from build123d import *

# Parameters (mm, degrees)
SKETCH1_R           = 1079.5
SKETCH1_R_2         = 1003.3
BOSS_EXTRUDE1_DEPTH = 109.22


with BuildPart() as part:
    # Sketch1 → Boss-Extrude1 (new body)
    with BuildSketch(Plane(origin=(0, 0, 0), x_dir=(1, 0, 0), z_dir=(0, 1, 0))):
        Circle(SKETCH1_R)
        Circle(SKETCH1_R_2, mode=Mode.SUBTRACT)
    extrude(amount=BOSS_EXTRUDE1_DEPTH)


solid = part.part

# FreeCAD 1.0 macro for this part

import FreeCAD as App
import Part
import Sketcher
Q = App.Units.Quantity

doc = App.newDocument("Part")
params = doc.addObject("Spreadsheet::Sheet", "Params")
for row, (alias, value) in enumerate([
    ("sketch1_diameter", "85 in"),
    ("sketch1_diameter2", "79 in"),
    ("pad1_length", "4.3 in"),
], start=1):
    params.set(f"A{row}", alias)
    params.set(f"B{row}", "=" + value)
    params.setAlias(f"B{row}", alias)

body = doc.addObject("PartDesign::Body", "Body")

sketch1 = doc.addObject("Sketcher::SketchObject", "Sketch")
body.addObject(sketch1)
sketch1.AttachmentSupport = (doc.XZ_Plane, [""])
sketch1.MapMode = "FlatFace"
sketch1.addGeometry(Part.Circle(App.Vector(0, 0, 0), App.Vector(0, 0, 1), 1080), False)
sketch1.addGeometry(Part.Circle(App.Vector(0, 0, 0), App.Vector(0, 0, 1), 1003), False)
sketch1.addConstraint(Sketcher.Constraint("Coincident", 0, 3, -1, 1))
sketch1.addConstraint(Sketcher.Constraint("Coincident", 1, 3, -1, 1))
sketch1.addConstraint(Sketcher.Constraint("Diameter", 0, Q("85 in")))
sketch1.addConstraint(Sketcher.Constraint("Diameter", 1, Q("79 in")))
sketch1.setExpression("Constraints[2]", "Params.sketch1_diameter")
sketch1.setExpression("Constraints[3]", "Params.sketch1_diameter2")
pad1 = doc.addObject("PartDesign::Pad", "Pad")
body.addObject(pad1)
pad1.Profile = sketch1
pad1.setExpression("Length", "Params.pad1_length")
pad1.Reversed = True

doc.recompute()
